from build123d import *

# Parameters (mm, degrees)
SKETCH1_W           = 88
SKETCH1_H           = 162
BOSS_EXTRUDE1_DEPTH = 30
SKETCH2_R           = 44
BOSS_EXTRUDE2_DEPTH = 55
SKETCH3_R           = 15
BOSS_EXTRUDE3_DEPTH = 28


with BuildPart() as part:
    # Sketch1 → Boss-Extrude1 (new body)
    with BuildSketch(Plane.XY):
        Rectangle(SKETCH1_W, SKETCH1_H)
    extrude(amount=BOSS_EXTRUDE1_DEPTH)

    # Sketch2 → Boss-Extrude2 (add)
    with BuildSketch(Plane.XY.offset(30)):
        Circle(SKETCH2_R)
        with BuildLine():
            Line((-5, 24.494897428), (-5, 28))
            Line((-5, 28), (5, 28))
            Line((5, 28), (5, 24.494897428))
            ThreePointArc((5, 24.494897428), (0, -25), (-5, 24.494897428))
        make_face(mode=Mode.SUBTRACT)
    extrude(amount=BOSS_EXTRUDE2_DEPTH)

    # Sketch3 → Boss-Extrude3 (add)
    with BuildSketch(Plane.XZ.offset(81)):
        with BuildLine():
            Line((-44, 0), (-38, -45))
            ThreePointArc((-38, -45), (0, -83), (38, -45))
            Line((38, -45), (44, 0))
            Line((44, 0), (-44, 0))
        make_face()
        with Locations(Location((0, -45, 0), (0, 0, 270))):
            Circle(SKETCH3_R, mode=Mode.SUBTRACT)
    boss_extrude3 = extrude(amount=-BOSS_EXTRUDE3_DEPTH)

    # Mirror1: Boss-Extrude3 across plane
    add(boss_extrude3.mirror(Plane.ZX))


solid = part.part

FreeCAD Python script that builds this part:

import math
import FreeCAD as App
import Part
import Sketcher

doc = App.newDocument("Part")
body = doc.addObject("PartDesign::Body", "Body")

# Sketch on XY plane
sketch1 = doc.addObject("Sketcher::SketchObject", "Sketch")
body.addObject(sketch1)
sketch1.AttachmentSupport = (doc.XY_Plane, [""])
sketch1.MapMode = "FlatFace"
sketch1.addGeometry([
    Part.LineSegment(App.Vector(-44, 81, 0), App.Vector(-44, -81, 0)),
    Part.LineSegment(App.Vector(-44, -81, 0), App.Vector(44, -81, 0)),
    Part.LineSegment(App.Vector(44, -81, 0), App.Vector(44, 81, 0)),
    Part.LineSegment(App.Vector(44, 81, 0), App.Vector(-44, 81, 0)),
], False)
sketch1.addConstraint([
    Sketcher.Constraint("Coincident", 0, 2, 1, 1),
    Sketcher.Constraint("Coincident", 1, 2, 2, 1),
    Sketcher.Constraint("Coincident", 2, 2, 3, 1),
    Sketcher.Constraint("Coincident", 3, 2, 0, 1),
    Sketcher.Constraint("Vertical", 0),
    Sketcher.Constraint("Horizontal", 1),
    Sketcher.Constraint("Vertical", 2),
    Sketcher.Constraint("Horizontal", 3),
    Sketcher.Constraint("Symmetric", 0, 2, 2, 2, -1, 1),
    Sketcher.Constraint("DistanceX", 1, 1, 1, 2, 88.0),
    Sketcher.Constraint("DistanceY", 0, 2, 0, 1, 162.0),
])
pad1 = doc.addObject("PartDesign::Pad", "Pad")
body.addObject(pad1)
pad1.Profile = sketch1
pad1.Length = 30

# Sketch on XY plane
sketch2 = doc.addObject("Sketcher::SketchObject", "Sketch001")
body.addObject(sketch2)
sketch2.AttachmentSupport = (doc.XY_Plane, [""])
sketch2.MapMode = "FlatFace"
sketch2.AttachmentOffset = App.Placement(App.Vector(0, 0, 30), App.Rotation())
sketch2.addGeometry([
    Part.Circle(App.Vector(0, 0, 0), App.Vector(0, 0, 1), 44),  # 0
    Part.ArcOfCircle(Part.Circle(App.Vector(0, 0, 0), App.Vector(0, 0, 1), 25), math.radians(101.536959), math.radians(438.463041)),  # 1
    Part.LineSegment(App.Vector(-5, 24.494897, 0), App.Vector(-5, 28, 0)),  # 2
    Part.LineSegment(App.Vector(-5, 28, 0), App.Vector(5, 28, 0)),  # 3
    Part.LineSegment(App.Vector(5, 28, 0), App.Vector(5, 24.494897, 0)),  # 4
], False)
sketch2.addConstraint([
    Sketcher.Constraint("Coincident", 1, 1, 2, 1),
    Sketcher.Constraint("Coincident", 2, 2, 3, 1),
    Sketcher.Constraint("Coincident", 3, 2, 4, 1),
    Sketcher.Constraint("Coincident", 4, 2, 1, 2),
    Sketcher.Constraint("Vertical", 2),
    Sketcher.Constraint("Horizontal", 3),
    Sketcher.Constraint("Vertical", 4),
    Sketcher.Constraint("Coincident", 0, 3, -1, 1),
    Sketcher.Constraint("Coincident", 1, 3, -1, 1),
    Sketcher.Constraint("Horizontal", 1, 1, 4, 2),
    Sketcher.Constraint("Diameter", 0, 88.0),
    Sketcher.Constraint("Radius", 1, 25.0),
    Sketcher.Constraint("DistanceX", 3, 1, 3, 2, 10.0),
    Sketcher.Constraint("DistanceY", -1, 1, 2, 2, 28.0),
])
pad2 = doc.addObject("PartDesign::Pad", "Pad001")
body.addObject(pad2)
pad2.Profile = sketch2
pad2.Length = 55

# Sketch on XZ plane
sketch3 = doc.addObject("Sketcher::SketchObject", "Sketch002")
body.addObject(sketch3)
sketch3.AttachmentSupport = (doc.XZ_Plane, [""])
sketch3.MapMode = "FlatFace"
sketch3.AttachmentOffset = App.Placement(App.Vector(0, 0, 81), App.Rotation())
sketch3.addGeometry([
    Part.LineSegment(App.Vector(-44, 0, 0), App.Vector(-38, -45, 0)),  # 0
    Part.ArcOfCircle(Part.Circle(App.Vector(0, -45, 0), App.Vector(0, 0, 1), 38), math.radians(180), math.radians(360)),  # 1
    Part.LineSegment(App.Vector(38, -45, 0), App.Vector(44, 0, 0)),  # 2
    Part.LineSegment(App.Vector(44, 0, 0), App.Vector(-44, 0, 0)),  # 3
    Part.Circle(App.Vector(0, -45, 0), App.Vector(0, 0, 1), 15),  # 4
], False)
sketch3.addConstraint([
    Sketcher.Constraint("Coincident", 0, 2, 1, 1),
    Sketcher.Constraint("Coincident", 1, 2, 2, 1),
    Sketcher.Constraint("Coincident", 2, 2, 3, 1),
    Sketcher.Constraint("Coincident", 3, 2, 0, 1),
    Sketcher.Constraint("Horizontal", 3),
    Sketcher.Constraint("Coincident", 4, 3, 1, 3),
    Sketcher.Constraint("Symmetric", 2, 2, 3, 2, -1, 1),
    Sketcher.Constraint("Symmetric", 0, 2, 1, 2, -2),
    Sketcher.Constraint("Horizontal", 4, 3, 0, 2),
    Sketcher.Constraint("Diameter", 4, 30.0),
    Sketcher.Constraint("Radius", 1, 38.0),
    Sketcher.Constraint("DistanceX", 3, 2, 3, 1, 88.0),
    Sketcher.Constraint("DistanceY", 1, 3, -1, 1, 45.0),
])
pad3 = doc.addObject("PartDesign::Pad", "Pad002")
body.addObject(pad3)
pad3.Profile = sketch3
pad3.Length = 28
pad3.Reversed = True
doc.recompute()

mirrored = doc.addObject("PartDesign::Mirrored", "Mirrored")
body.addObject(mirrored)
mirrored.Originals = [pad3]
mirrored.MirrorPlane = (doc.XZ_Plane, [""])
body.Tip = mirrored

doc.recompute()
